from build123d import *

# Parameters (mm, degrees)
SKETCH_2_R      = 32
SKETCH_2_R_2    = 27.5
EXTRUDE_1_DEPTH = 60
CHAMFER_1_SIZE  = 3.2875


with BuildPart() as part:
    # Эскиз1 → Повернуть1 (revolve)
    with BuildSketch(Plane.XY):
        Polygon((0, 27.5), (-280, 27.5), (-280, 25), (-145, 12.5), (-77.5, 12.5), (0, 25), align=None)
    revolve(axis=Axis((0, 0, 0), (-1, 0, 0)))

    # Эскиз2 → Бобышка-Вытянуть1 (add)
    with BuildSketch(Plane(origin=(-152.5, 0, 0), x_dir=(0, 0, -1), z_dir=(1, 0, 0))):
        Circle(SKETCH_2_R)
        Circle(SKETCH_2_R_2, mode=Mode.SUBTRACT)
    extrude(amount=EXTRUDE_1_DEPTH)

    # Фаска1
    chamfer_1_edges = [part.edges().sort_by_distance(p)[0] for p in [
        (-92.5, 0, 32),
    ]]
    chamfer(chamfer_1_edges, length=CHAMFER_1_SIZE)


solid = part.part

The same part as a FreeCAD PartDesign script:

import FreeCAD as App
import Part
import Sketcher

V = App.Vector
Q = App.Units.Quantity


def edges_at(feature, points):
    """Names of the edges that pass closest to the given points."""
    edges = feature.Shape.Edges
    near = lambda p: min(range(len(edges)), key=lambda i: edges[i].distToShape(Part.Vertex(*p))[0])
    return sorted({f"Edge{near(p) + 1}" for p in points})

doc = App.newDocument("Part")
body = doc.addObject("PartDesign::Body", "Body")

# Sketch on XY plane
sketch1 = body.newObject("Sketcher::SketchObject", "Sketch")
sketch1.AttachmentSupport = (doc.getObject("XY_Plane"), [""])
sketch1.MapMode = "FlatFace"
sketch1.addGeometry(Part.LineSegment(V(0, 27.5, 0), V(-280, 27.5, 0)), False)
sketch1.addGeometry(Part.LineSegment(V(-280, 27.5, 0), V(-280, 25, 0)), False)
sketch1.addGeometry(Part.LineSegment(V(-280, 25, 0), V(-145, 12.5, 0)), False)
sketch1.addGeometry(Part.LineSegment(V(-145, 12.5, 0), V(-77.5, 12.5, 0)), False)
sketch1.addGeometry(Part.LineSegment(V(-77.5, 12.5, 0), V(0, 25, 0)), False)
sketch1.addGeometry(Part.LineSegment(V(0, 25, 0), V(0, 27.5, 0)), False)
sketch1.addConstraint(Sketcher.Constraint("Coincident", 0, 2, 1, 1))
sketch1.addConstraint(Sketcher.Constraint("Coincident", 1, 2, 2, 1))
sketch1.addConstraint(Sketcher.Constraint("Coincident", 2, 2, 3, 1))
sketch1.addConstraint(Sketcher.Constraint("Coincident", 3, 2, 4, 1))
sketch1.addConstraint(Sketcher.Constraint("Coincident", 4, 2, 5, 1))
sketch1.addConstraint(Sketcher.Constraint("Coincident", 5, 2, 0, 1))
sketch1.addConstraint(Sketcher.Constraint("Horizontal", 0))
sketch1.addConstraint(Sketcher.Constraint("Vertical", 1))
sketch1.addConstraint(Sketcher.Constraint("Horizontal", 3))
sketch1.addConstraint(Sketcher.Constraint("Vertical", 5))
sketch1.addConstraint(Sketcher.Constraint("PointOnObject", 4, 2, -2))
sketch1.addConstraint(Sketcher.Constraint("Horizontal", 1, 2, 4, 2))
sketch1.addConstraint(Sketcher.Constraint("DistanceX", 0, 2, 0, 1, Q("280 mm")))
sketch1.addConstraint(Sketcher.Constraint("DistanceX", 3, 1, 3, 2, Q("67.5 mm")))
sketch1.addConstraint(Sketcher.Constraint("DistanceY", 1, 2, 1, 1, Q("2.5 mm")))
sketch1.addConstraint(Sketcher.Constraint("DistanceY", -1, 1, 1, 2, Q("25 mm")))
sketch1.addConstraint(Sketcher.Constraint("DistanceX", 2, 2, -1, 1, Q("145 mm")))
sketch1.addConstraint(Sketcher.Constraint("DistanceY", 2, 2, 0, 2, Q("15 mm")))
revolution = body.newObject("PartDesign::Revolution", "Revolution")
revolution.Profile = sketch1
revolution.ReferenceAxis = (sketch1, ["H_Axis"])
revolution.Angle = 360

# Sketch on YZ plane
sketch2 = body.newObject("Sketcher::SketchObject", "Sketch001")
sketch2.AttachmentSupport = (doc.getObject("YZ_Plane"), [""])
sketch2.MapMode = "FlatFace"
sketch2.AttachmentOffset = App.Placement(V(0, 0, -152.5), App.Rotation())
sketch2.addGeometry(Part.Circle(V(0, 0, 0), V(0, 0, 1), 32), False)
sketch2.addGeometry(Part.Circle(V(0, 0, 0), V(0, 0, 1), 27.5), False)
sketch2.addConstraint(Sketcher.Constraint("Coincident", 0, 3, -1, 1))
sketch2.addConstraint(Sketcher.Constraint("Coincident", 1, 3, -1, 1))
sketch2.addConstraint(Sketcher.Constraint("Diameter", 0, Q("64 mm")))
sketch2.addConstraint(Sketcher.Constraint("Diameter", 1, Q("55 mm")))
pad1 = body.newObject("PartDesign::Pad", "Pad")
pad1.Profile = sketch2
pad1.Length = 60
doc.recompute()

chamfer = body.newObject("PartDesign::Chamfer", "Chamfer")
chamfer.Base = (pad1, edges_at(pad1, [(-92.5, 0, 32)]))
chamfer.Size = 3.2875

doc.recompute()
